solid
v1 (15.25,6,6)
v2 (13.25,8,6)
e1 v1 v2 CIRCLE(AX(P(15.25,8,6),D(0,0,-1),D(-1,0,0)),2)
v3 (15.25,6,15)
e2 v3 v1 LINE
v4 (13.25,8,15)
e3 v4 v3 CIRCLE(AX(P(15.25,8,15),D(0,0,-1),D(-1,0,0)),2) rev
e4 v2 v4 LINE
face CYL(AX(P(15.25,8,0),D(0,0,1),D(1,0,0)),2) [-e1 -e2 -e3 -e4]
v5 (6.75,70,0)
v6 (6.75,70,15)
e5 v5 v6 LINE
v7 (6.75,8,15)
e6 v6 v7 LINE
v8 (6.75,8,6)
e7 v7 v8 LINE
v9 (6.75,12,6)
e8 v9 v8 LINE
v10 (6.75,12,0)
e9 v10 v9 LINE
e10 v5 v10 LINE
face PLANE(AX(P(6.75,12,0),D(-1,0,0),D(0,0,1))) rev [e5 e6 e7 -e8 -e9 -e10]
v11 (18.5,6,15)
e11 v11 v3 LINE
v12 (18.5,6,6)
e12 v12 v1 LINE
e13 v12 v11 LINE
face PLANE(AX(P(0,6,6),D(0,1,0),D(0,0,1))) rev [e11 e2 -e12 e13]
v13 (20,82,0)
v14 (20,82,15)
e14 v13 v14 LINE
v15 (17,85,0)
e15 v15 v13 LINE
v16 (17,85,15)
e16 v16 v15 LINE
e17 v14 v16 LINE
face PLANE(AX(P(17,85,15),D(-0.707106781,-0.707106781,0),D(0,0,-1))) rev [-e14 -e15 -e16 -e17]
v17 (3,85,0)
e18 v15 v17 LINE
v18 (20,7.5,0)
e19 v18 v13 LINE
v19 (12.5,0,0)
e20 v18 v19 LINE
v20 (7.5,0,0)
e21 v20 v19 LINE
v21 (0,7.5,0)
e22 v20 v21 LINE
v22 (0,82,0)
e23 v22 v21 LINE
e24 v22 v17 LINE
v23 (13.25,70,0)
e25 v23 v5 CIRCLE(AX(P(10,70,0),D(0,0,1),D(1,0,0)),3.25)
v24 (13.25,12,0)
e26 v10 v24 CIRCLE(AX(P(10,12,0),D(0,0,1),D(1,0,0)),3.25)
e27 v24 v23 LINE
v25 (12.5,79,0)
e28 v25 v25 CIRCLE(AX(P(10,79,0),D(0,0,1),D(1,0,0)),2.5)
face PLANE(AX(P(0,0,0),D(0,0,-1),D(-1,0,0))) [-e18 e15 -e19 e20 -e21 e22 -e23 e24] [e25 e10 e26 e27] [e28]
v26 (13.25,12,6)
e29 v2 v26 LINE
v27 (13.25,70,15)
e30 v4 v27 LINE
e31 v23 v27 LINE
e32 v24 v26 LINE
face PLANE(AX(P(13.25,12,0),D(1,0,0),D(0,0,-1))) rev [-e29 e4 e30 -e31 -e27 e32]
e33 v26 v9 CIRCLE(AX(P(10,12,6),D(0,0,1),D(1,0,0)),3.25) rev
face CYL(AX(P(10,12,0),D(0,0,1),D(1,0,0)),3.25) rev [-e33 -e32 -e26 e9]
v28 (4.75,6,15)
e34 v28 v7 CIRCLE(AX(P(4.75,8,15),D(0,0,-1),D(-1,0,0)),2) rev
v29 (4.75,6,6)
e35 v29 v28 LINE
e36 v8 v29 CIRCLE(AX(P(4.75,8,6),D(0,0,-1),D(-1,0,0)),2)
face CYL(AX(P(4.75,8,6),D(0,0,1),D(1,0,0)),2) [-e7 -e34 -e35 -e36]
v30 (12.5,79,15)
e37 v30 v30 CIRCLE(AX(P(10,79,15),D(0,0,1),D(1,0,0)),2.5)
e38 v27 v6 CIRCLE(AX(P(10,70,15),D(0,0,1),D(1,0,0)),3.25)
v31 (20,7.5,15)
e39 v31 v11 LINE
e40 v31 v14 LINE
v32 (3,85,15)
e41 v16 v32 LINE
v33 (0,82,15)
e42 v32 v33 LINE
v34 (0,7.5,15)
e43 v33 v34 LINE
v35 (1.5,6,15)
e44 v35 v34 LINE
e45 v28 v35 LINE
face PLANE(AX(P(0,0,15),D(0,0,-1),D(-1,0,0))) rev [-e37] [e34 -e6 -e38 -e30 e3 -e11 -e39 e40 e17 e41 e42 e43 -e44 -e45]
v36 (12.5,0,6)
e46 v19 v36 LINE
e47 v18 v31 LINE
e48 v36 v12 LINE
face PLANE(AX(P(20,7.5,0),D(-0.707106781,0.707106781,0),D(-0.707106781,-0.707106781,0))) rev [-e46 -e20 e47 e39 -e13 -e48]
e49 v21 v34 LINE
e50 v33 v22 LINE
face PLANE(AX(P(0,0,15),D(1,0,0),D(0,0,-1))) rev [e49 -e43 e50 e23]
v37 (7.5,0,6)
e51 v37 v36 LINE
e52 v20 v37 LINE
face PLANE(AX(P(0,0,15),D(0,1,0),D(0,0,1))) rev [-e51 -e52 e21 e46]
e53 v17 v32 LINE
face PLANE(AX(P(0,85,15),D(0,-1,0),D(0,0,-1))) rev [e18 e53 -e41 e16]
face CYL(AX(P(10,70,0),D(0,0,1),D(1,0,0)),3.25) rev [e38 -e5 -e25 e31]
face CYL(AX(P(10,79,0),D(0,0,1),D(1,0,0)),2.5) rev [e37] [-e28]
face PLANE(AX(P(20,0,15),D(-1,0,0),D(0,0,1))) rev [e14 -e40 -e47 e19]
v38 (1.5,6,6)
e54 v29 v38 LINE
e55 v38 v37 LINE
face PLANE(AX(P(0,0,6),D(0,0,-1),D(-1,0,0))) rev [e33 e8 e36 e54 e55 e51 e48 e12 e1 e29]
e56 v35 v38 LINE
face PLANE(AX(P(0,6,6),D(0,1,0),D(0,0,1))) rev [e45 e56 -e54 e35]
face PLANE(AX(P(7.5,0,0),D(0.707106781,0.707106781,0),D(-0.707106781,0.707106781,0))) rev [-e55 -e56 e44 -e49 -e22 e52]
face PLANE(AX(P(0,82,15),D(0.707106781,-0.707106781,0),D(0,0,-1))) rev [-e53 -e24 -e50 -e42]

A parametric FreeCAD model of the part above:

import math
import FreeCAD as App
import Part
import Sketcher
Q = App.Units.Quantity


def edges_at(feature, points):
    """Names of the edges that pass closest to the given points."""
    edges = feature.Shape.Edges
    near = lambda p: min(range(len(edges)), key=lambda i: edges[i].distToShape(Part.Vertex(*p))[0])
    return sorted({f"Edge{near(p) + 1}" for p in points})


def add_polygon(sketch, points):
    """Adds a closed chain of lines whose ends are joined by coincident constraints."""
    first, n = sketch.GeometryCount, len(points)
    for a, b in zip(points, points[1:] + points[:1]):
        sketch.addGeometry(Part.LineSegment(App.Vector(*a, 0), App.Vector(*b, 0)), False)
    for i in range(n):
        sketch.addConstraint(Sketcher.Constraint("Coincident", first + i, 2, first + (i + 1) % n, 1))

doc = App.newDocument("Part")
body = doc.addObject("PartDesign::Body", "Body")

sketch1 = doc.addObject("Sketcher::SketchObject", "Sketch")
body.addObject(sketch1)
sketch1.AttachmentSupport = (doc.XY_Plane, [""])
sketch1.MapMode = "FlatFace"
add_polygon(sketch1, [(0, 85), (0, 0), (20, 0), (20, 85)])
sketch1.addConstraint([
    Sketcher.Constraint("Vertical", 0),
    Sketcher.Constraint("Horizontal", 1),
    Sketcher.Constraint("Vertical", 2),
    Sketcher.Constraint("Horizontal", 3),
    Sketcher.Constraint("Coincident", 0, 2, -1, 1),
    Sketcher.Constraint("DistanceX", 1, 1, 1, 2, Q("20 mm")),
    Sketcher.Constraint("DistanceY", 0, 2, 0, 1, Q("85 mm")),
])
pad1 = doc.addObject("PartDesign::Pad", "Pad")
body.addObject(pad1)
pad1.Profile = sketch1
pad1.Length = 15

sketch2 = doc.addObject("Sketcher::SketchObject", "Sketch001")
body.addObject(sketch2)
sketch2.AttachmentSupport = (doc.XY_Plane, [""])
sketch2.MapMode = "FlatFace"
sketch2.AttachmentOffset = App.Placement(App.Vector(0, 0, 15), App.Rotation())
sketch2.addGeometry([
    Part.Circle(App.Vector(10, 79, 0), App.Vector(0, 0, 1), 2.5),
    Part.LineSegment(App.Vector(6.8, 70, 0), App.Vector(6.8, 12, 0)),
    Part.ArcOfCircle(Part.Circle(App.Vector(10, 12, 0), App.Vector(0, 0, 1), 3.2), math.radians(180), math.radians(360)),
    Part.LineSegment(App.Vector(13.2, 12, 0), App.Vector(13.2, 70, 0)),
    Part.ArcOfCircle(Part.Circle(App.Vector(10, 70, 0), App.Vector(0, 0, 1), 3.2), math.radians(0), math.radians(180)),
], False)
sketch2.addConstraint([
    Sketcher.Constraint("Tangent", 1, 2, 2, 1),
    Sketcher.Constraint("Tangent", 2, 2, 3, 1),
    Sketcher.Constraint("Tangent", 3, 2, 4, 1),
    Sketcher.Constraint("Tangent", 4, 2, 1, 1),
    Sketcher.Constraint("Vertical", 1),
    Sketcher.Constraint("Vertical", 3),
    Sketcher.Constraint("Vertical", 0, 3, 2, 3),
    Sketcher.Constraint("Diameter", 0, Q("5 mm")),
    Sketcher.Constraint("DistanceY", 1, 2, 1, 1, Q("58 mm")),
    Sketcher.Constraint("Radius", 2, Q("3.25 mm")),
    Sketcher.Constraint("DistanceX", -1, 1, 0, 3, Q("10 mm")),
    Sketcher.Constraint("DistanceY", -1, 1, 0, 3, Q("79 mm")),
    Sketcher.Constraint("DistanceY", -1, 1, 2, 3, Q("12 mm")),
])
pocket1 = doc.addObject("PartDesign::Pocket", "Pocket")
body.addObject(pocket1)
pocket1.Profile = sketch2
pocket1.Length = 15

sketch3 = doc.addObject("Sketcher::SketchObject", "Sketch002")
body.addObject(sketch3)
sketch3.AttachmentSupport = (doc.XY_Plane, [""])
sketch3.MapMode = "FlatFace"
sketch3.AttachmentOffset = App.Placement(App.Vector(0, 0, 15), App.Rotation())
add_polygon(sketch3, [(0, 6), (0, 0), (20, 0), (20, 6)])
sketch3.addConstraint([
    Sketcher.Constraint("Vertical", 0),
    Sketcher.Constraint("Horizontal", 1),
    Sketcher.Constraint("Vertical", 2),
    Sketcher.Constraint("Horizontal", 3),
    Sketcher.Constraint("Coincident", 0, 2, -1, 1),
    Sketcher.Constraint("DistanceX", 1, 1, 1, 2, Q("20 mm")),
    Sketcher.Constraint("DistanceY", 0, 2, 0, 1, Q("6 mm")),
])
pocket2 = doc.addObject("PartDesign::Pocket", "Pocket001")
body.addObject(pocket2)
pocket2.Profile = sketch3
pocket2.Length = 9

sketch4 = doc.addObject("Sketcher::SketchObject", "Sketch003")
body.addObject(sketch4)
sketch4.AttachmentSupport = (doc.XY_Plane, [""])
sketch4.MapMode = "FlatFace"
sketch4.AttachmentOffset = App.Placement(App.Vector(0, 0, 15), App.Rotation())
add_polygon(sketch4, [(8, 0), (0, 8), (0, -8), (20, -8), (20, 8), (12, 0)])
sketch4.addConstraint([
    Sketcher.Constraint("Vertical", 1),
    Sketcher.Constraint("Horizontal", 2),
    Sketcher.Constraint("Vertical", 3),
    Sketcher.Constraint("Horizontal", 5),
    Sketcher.Constraint("Symmetric", 0, 2, 1, 2, -1, 1),
    Sketcher.Constraint("PointOnObject", 4, 2, -1),
    Sketcher.Constraint("Perpendicular", 0, 4),
    Sketcher.Constraint("Horizontal", 0, 2, 3, 2),
    Sketcher.Constraint("Equal", 0, 4),
    Sketcher.Constraint("DistanceX", 2, 1, 2, 2, Q("20 mm")),
    Sketcher.Constraint("DistanceX", 5, 2, 5, 1, Q("5 mm")),
])
pocket3 = doc.addObject("PartDesign::Pocket", "Pocket002")
body.addObject(pocket3)
pocket3.Profile = sketch4
pocket3.Length = 15

sketch5 = doc.addObject("Sketcher::SketchObject", "Sketch004")
body.addObject(sketch5)
sketch5.AttachmentSupport = (doc.XY_Plane, [""])
sketch5.MapMode = "FlatFace"
sketch5.AttachmentOffset = App.Placement(App.Vector(0, 0, 15), App.Rotation())
add_polygon(sketch5, [(7, 14), (7, 6), (13, 6), (13, 14)])
sketch5.addConstraint([
    Sketcher.Constraint("Vertical", 0),
    Sketcher.Constraint("Horizontal", 1),
    Sketcher.Constraint("Vertical", 2),
    Sketcher.Constraint("Horizontal", 3),
    Sketcher.Constraint("DistanceY", 0, 2, 0, 1, Q("8 mm")),
    Sketcher.Constraint("DistanceX", 1, 1, 1, 2, Q("6.5 mm")),
    Sketcher.Constraint("DistanceY", -1, 1, 0, 2, Q("6 mm")),
    Sketcher.Constraint("DistanceX", -1, 1, 0, 2, Q("6.75 mm")),
])
pocket4 = doc.addObject("PartDesign::Pocket", "Pocket003")
body.addObject(pocket4)
pocket4.Profile = sketch5
pocket4.Length = 9
doc.recompute()

fillet = doc.addObject("PartDesign::Fillet", "Fillet")
body.addObject(fillet)
fillet.Base = (pocket4, edges_at(pocket4, [(6.75, 6, 10.5), (13.25, 6, 10.5)]))
fillet.Radius = 2
doc.recompute()

chamfer = doc.addObject("PartDesign::Chamfer", "Chamfer")
body.addObject(chamfer)
chamfer.Base = (fillet, edges_at(fillet, [(0, 85, 7.5), (20, 85, 7.5)]))
chamfer.Size = 3

doc.recompute()
